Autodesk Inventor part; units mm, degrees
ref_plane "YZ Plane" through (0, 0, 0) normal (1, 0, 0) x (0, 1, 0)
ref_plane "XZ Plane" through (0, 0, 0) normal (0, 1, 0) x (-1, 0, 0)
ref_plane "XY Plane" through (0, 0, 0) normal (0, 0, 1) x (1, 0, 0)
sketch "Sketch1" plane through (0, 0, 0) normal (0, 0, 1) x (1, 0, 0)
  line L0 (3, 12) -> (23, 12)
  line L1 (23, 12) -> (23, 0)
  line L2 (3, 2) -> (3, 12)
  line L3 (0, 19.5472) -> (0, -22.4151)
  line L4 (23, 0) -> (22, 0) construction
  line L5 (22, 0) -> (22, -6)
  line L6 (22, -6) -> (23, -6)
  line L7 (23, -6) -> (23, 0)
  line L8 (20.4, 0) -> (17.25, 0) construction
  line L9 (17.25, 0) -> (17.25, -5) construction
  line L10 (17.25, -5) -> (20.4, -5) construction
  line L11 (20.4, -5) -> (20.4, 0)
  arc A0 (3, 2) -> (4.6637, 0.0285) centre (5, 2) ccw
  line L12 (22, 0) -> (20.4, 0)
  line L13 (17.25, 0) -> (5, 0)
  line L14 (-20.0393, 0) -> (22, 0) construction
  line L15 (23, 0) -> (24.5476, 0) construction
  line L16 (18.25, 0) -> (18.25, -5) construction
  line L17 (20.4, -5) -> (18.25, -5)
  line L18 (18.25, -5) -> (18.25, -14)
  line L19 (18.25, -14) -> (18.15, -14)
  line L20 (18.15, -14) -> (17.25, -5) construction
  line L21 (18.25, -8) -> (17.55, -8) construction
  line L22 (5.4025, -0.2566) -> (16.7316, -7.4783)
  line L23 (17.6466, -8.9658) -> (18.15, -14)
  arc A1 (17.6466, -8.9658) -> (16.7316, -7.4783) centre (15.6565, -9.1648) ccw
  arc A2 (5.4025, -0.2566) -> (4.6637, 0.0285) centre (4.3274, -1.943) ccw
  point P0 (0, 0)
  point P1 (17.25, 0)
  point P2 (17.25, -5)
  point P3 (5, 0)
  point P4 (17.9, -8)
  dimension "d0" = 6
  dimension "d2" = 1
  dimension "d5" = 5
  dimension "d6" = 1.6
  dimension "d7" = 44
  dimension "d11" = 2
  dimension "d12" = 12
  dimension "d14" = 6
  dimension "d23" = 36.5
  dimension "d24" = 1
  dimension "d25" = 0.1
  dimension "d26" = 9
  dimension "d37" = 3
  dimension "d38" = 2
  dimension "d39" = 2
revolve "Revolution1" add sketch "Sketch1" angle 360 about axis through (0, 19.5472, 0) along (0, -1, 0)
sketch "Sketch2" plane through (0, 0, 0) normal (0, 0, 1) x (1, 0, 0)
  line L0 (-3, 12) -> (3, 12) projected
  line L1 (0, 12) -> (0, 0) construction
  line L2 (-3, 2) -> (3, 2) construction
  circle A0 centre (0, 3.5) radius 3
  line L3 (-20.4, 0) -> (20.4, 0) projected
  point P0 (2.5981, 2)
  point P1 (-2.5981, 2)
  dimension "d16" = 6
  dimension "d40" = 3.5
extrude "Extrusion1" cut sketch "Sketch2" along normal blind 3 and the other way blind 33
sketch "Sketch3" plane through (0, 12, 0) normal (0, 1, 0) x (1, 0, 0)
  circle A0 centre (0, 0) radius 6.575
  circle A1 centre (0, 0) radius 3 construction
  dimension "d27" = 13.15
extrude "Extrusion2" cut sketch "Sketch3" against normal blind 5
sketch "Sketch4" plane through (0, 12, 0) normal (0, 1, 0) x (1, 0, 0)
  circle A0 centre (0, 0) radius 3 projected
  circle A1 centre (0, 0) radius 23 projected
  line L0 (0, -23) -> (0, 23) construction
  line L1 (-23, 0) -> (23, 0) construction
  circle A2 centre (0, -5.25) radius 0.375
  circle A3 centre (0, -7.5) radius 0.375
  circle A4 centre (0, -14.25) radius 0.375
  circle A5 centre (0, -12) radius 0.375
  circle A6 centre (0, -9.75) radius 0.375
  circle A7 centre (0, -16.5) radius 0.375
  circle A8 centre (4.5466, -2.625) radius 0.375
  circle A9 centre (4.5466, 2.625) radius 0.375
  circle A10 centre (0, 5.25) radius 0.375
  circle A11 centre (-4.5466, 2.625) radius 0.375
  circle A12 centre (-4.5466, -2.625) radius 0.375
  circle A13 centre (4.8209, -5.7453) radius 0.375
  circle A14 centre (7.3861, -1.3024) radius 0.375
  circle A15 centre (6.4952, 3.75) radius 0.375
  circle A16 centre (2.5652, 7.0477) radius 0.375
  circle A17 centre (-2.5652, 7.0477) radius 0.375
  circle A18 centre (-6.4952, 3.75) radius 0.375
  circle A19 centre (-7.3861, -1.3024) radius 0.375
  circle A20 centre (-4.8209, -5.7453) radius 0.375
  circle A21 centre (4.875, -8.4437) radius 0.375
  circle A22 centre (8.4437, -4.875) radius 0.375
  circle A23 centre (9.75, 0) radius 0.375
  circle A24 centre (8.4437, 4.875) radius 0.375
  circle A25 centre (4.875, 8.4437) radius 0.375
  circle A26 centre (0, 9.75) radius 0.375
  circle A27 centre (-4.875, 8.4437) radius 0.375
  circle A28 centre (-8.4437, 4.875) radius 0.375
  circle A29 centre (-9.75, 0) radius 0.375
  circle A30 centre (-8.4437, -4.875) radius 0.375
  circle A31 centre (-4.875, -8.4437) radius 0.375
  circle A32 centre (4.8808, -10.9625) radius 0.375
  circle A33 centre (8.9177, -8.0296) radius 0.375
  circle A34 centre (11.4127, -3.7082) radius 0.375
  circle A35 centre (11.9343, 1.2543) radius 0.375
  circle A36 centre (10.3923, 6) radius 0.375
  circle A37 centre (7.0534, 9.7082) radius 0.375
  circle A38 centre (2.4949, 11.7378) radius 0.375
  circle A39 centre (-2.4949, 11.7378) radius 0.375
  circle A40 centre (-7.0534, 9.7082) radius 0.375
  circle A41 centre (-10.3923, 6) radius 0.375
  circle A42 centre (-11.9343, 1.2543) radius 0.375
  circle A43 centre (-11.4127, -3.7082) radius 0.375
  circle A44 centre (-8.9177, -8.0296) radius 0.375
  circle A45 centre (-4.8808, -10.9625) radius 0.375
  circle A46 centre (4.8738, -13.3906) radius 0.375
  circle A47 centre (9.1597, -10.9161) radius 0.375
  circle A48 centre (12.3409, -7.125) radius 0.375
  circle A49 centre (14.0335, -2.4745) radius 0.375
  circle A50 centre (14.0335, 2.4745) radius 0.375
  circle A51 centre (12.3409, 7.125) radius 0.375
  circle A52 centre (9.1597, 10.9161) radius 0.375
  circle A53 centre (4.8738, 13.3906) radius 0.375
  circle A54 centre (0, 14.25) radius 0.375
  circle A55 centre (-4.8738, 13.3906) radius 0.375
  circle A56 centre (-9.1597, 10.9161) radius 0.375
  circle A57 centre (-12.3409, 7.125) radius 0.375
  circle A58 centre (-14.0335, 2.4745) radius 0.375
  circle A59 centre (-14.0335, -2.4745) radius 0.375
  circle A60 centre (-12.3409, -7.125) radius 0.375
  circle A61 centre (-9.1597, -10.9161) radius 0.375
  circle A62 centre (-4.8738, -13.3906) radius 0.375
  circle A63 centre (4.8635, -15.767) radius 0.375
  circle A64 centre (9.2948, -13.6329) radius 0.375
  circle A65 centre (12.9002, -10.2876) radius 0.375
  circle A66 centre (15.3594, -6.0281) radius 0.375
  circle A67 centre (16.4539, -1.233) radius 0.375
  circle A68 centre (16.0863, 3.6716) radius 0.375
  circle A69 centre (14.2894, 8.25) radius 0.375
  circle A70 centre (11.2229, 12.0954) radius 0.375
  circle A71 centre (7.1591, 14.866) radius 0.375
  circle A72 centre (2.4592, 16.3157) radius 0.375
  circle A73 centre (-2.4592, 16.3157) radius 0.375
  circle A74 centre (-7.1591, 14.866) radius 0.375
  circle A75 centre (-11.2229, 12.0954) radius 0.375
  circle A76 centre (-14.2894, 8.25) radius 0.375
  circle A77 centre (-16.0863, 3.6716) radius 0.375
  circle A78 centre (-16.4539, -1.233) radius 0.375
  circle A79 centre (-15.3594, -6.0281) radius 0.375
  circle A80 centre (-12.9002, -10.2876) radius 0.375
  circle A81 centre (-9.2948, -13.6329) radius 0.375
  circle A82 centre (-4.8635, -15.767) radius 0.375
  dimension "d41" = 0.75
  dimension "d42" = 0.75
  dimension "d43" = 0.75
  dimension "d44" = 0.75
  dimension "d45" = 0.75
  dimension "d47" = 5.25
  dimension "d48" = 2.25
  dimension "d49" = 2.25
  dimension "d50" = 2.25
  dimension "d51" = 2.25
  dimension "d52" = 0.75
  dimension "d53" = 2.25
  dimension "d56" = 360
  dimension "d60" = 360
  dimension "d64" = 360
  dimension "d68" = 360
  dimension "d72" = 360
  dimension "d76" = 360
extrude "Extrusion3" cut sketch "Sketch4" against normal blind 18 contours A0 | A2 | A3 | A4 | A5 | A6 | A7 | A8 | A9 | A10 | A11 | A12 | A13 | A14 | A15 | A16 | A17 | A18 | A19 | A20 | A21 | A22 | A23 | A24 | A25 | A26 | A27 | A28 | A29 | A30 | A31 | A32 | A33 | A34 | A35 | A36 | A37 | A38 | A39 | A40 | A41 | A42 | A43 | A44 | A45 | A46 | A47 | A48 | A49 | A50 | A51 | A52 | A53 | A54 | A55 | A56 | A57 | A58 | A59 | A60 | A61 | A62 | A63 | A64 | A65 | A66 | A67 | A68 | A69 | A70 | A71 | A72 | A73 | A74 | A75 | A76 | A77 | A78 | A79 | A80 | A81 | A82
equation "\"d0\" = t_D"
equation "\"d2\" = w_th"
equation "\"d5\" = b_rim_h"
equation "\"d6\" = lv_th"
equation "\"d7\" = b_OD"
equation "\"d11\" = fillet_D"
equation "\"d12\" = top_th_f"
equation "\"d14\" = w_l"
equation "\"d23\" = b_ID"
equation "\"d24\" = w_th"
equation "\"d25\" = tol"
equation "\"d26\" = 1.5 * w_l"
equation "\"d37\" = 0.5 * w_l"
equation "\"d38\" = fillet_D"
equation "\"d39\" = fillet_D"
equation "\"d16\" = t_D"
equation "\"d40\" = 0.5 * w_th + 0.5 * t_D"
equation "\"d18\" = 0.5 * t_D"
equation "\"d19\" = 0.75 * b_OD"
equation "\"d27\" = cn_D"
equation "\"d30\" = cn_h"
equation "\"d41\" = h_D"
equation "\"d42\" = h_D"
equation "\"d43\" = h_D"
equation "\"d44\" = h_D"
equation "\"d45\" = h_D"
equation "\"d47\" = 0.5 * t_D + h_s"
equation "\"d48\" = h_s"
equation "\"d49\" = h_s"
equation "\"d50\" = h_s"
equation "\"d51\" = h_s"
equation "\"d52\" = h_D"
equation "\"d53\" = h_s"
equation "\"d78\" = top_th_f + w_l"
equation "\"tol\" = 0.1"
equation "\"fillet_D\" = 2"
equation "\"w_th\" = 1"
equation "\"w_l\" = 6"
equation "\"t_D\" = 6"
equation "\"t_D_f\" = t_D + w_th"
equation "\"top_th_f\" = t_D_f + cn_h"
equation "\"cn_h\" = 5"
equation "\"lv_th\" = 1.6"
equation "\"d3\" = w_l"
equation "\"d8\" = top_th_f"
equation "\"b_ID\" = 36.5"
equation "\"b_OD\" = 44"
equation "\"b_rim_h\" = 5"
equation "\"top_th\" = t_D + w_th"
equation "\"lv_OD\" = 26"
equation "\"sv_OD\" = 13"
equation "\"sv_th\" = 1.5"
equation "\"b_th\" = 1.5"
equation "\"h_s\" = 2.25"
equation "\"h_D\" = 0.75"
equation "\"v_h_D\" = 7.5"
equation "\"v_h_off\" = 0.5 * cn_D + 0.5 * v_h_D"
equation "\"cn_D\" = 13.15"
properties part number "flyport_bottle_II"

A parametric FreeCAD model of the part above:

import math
import FreeCAD as App
import Part
import Sketcher

V = App.Vector
Q = App.Units.Quantity

doc = App.newDocument("Part")
body = doc.addObject("PartDesign::Body", "Body")

# Sketch on XY plane
sketch1 = doc.addObject("Sketcher::SketchObject", "Sketch")
body.addObject(sketch1)
sketch1.AttachmentSupport = (doc.XY_Plane, [""])
sketch1.MapMode = "FlatFace"
sketch1.addGeometry([
    Part.LineSegment(V(23, 12, 0), V(3, 12, 0)),  # 0
    Part.LineSegment(V(3, 12, 0), V(3, 2, 0)),  # 1
    Part.ArcOfCircle(Part.Circle(V(5, 2, 0), V(0, 0, 1), 2), math.radians(180), math.radians(260)),  # 2
    Part.ArcOfCircle(Part.Circle(V(4.33, -1.94, 0), V(0, 0, 1), 2), math.radians(57), math.radians(80)),  # 3
    Part.LineSegment(V(5.4, -0.26, 0), V(16.73, -7.48, 0)),  # 4
    Part.ArcOfCircle(Part.Circle(V(15.66, -9.16, 0), V(0, 0, 1), 2), math.radians(6), math.radians(57)),  # 5
    Part.LineSegment(V(17.65, -8.97, 0), V(18.15, -14, 0)),  # 6
    Part.LineSegment(V(18.15, -14, 0), V(18.25, -14, 0)),  # 7
    Part.LineSegment(V(18.25, -14, 0), V(18.25, -5, 0)),  # 8
    Part.LineSegment(V(18.25, -5, 0), V(20.4, -5, 0)),  # 9
    Part.LineSegment(V(20.4, -5, 0), V(20.4, 0, 0)),  # 10
    Part.LineSegment(V(20.4, 0, 0), V(22, 0, 0)),  # 11
    Part.LineSegment(V(22, 0, 0), V(22, -6, 0)),  # 12
    Part.LineSegment(V(22, -6, 0), V(23, -6, 0)),  # 13
    Part.LineSegment(V(23, -6, 0), V(23, 12, 0)),  # 14
], False)
sketch1.addConstraint([
    Sketcher.Constraint("Coincident", 0, 2, 1, 1),
    Sketcher.Constraint("Tangent", 1, 2, 2, 1),
    Sketcher.Constraint("Tangent", 2, 2, 3, 2),
    Sketcher.Constraint("Tangent", 3, 1, 4, 1),
    Sketcher.Constraint("Tangent", 4, 2, 5, 2),
    Sketcher.Constraint("Tangent", 5, 1, 6, 1),
    Sketcher.Constraint("Coincident", 6, 2, 7, 1),
    Sketcher.Constraint("Coincident", 7, 2, 8, 1),
    Sketcher.Constraint("Coincident", 8, 2, 9, 1),
    Sketcher.Constraint("Coincident", 9, 2, 10, 1),
    Sketcher.Constraint("Coincident", 10, 2, 11, 1),
    Sketcher.Constraint("Coincident", 11, 2, 12, 1),
    Sketcher.Constraint("Coincident", 12, 2, 13, 1),
    Sketcher.Constraint("Coincident", 13, 2, 14, 1),
    Sketcher.Constraint("Coincident", 14, 2, 0, 1),
    Sketcher.Constraint("Horizontal", 0),
    Sketcher.Constraint("Vertical", 1),
    Sketcher.Constraint("Horizontal", 7),
    Sketcher.Constraint("Vertical", 8),
    Sketcher.Constraint("Horizontal", 9),
    Sketcher.Constraint("Vertical", 10),
    Sketcher.Constraint("Horizontal", 11),
    Sketcher.Constraint("Vertical", 12),
    Sketcher.Constraint("Horizontal", 13),
    Sketcher.Constraint("Vertical", 14),
    Sketcher.Constraint("Equal", 2, 3),
    Sketcher.Constraint("Equal", 3, 5),
    Sketcher.Constraint("PointOnObject", 10, 2, -1),
    Sketcher.Constraint("Radius", 2, Q("2 mm")),
    Sketcher.Constraint("DistanceX", 13, 1, 13, 2, Q("1 mm")),
    Sketcher.Constraint("DistanceY", 8, 1, 8, 2, Q("9 mm")),
    Sketcher.Constraint("DistanceY", 10, 1, 10, 2, Q("5 mm")),
    Sketcher.Constraint("DistanceY", 12, 2, 12, 1, Q("6 mm")),
    Sketcher.Constraint("DistanceX", 7, 1, 7, 2, Q("0.1 mm")),
    Sketcher.Constraint("DistanceX", 11, 1, 11, 2, Q("1.6 mm")),
    Sketcher.Constraint("DistanceX", -1, 1, 2, 3, Q("5 mm")),
    Sketcher.Constraint("DistanceY", -1, 1, 2, 3, Q("2 mm")),
    Sketcher.Constraint("DistanceY", -1, 1, 0, 2, Q("12 mm")),
    Sketcher.Constraint("DistanceX", 0, 2, 0, 1, Q("20 mm")),
    Sketcher.Constraint("DistanceX", 9, 1, 9, 2, Q("2.15 mm")),
    Sketcher.Constraint("Angle", 6, Q("-84.2896 deg")),
    Sketcher.Constraint("Distance", 4, Q("13.435 mm")),
    Sketcher.Constraint("DistanceY", 3, 3, -1, 1, Q("1.943 mm")),
])
revolution = doc.addObject("PartDesign::Revolution", "Revolution")
body.addObject(revolution)
revolution.Profile = sketch1
revolution.ReferenceAxis = (sketch1, ["V_Axis"])
revolution.Angle = 360

# Sketch on XY plane
sketch2 = doc.addObject("Sketcher::SketchObject", "Sketch001")
body.addObject(sketch2)
sketch2.AttachmentSupport = (doc.XY_Plane, [""])
sketch2.MapMode = "FlatFace"
sketch2.addGeometry(Part.Circle(V(0, 3.5, 0), V(0, 0, 1), 3), False)
sketch2.addConstraint([
    Sketcher.Constraint("PointOnObject", 0, 3, -2),
    Sketcher.Constraint("Diameter", 0, Q("6 mm")),
    Sketcher.Constraint("DistanceY", -1, 1, 0, 3, Q("3.5 mm")),
])
pocket1 = doc.addObject("PartDesign::Pocket", "Pocket")
body.addObject(pocket1)
pocket1.Profile = sketch2
pocket1.Type = "TwoLengths"
pocket1.Length = 3
pocket1.Length2 = 33
pocket1.Reversed = True

# Sketch on XZ plane
sketch3 = doc.addObject("Sketcher::SketchObject", "Sketch002")
body.addObject(sketch3)
sketch3.AttachmentSupport = (doc.XZ_Plane, [""])
sketch3.MapMode = "FlatFace"
sketch3.AttachmentOffset = App.Placement(V(0, 0, -12), App.Rotation())
sketch3.addGeometry(Part.Circle(V(0, 0, 0), V(0, 0, 1), 7), False)
sketch3.addConstraint([
    Sketcher.Constraint("Coincident", 0, 3, -1, 1),
    Sketcher.Constraint("Diameter", 0, Q("13.15 mm")),
])
pocket2 = doc.addObject("PartDesign::Pocket", "Pocket001")
body.addObject(pocket2)
pocket2.Profile = sketch3
pocket2.Length = 5
pocket2.Reversed = True

# Sketch on XZ plane
sketch4 = doc.addObject("Sketcher::SketchObject", "Sketch003")
body.addObject(sketch4)
sketch4.AttachmentSupport = (doc.XZ_Plane, [""])
sketch4.MapMode = "FlatFace"
sketch4.AttachmentOffset = App.Placement(V(0, 0, -12), App.Rotation())
sketch4.addGeometry([
    Part.Circle(V(0, 0, 0), V(0, 0, 1), 3),  # 0
    Part.Circle(V(0, 5.25, 0), V(0, 0, 1), 0.38),  # 1
    Part.Circle(V(0, 7.5, 0), V(0, 0, 1), 0.38),  # 2
    Part.Circle(V(0, 14.25, 0), V(0, 0, 1), 0.38),  # 3
    Part.Circle(V(0, 12, 0), V(0, 0, 1), 0.38),  # 4
    Part.Circle(V(0, 9.75, 0), V(0, 0, 1), 0.38),  # 5
    Part.Circle(V(0, 16.5, 0), V(0, 0, 1), 0.38),  # 6
    Part.Circle(V(4.55, 2.62, 0), V(0, 0, 1), 0.38),  # 7
    Part.Circle(V(4.55, -2.62, 0), V(0, 0, 1), 0.38),  # 8
    Part.Circle(V(0, -5.25, 0), V(0, 0, 1), 0.38),  # 9
    Part.Circle(V(-4.55, -2.62, 0), V(0, 0, 1), 0.38),  # 10
    Part.Circle(V(-4.55, 2.62, 0), V(0, 0, 1), 0.38),  # 11
    Part.Circle(V(4.82, 5.75, 0), V(0, 0, 1), 0.38),  # 12
    Part.Circle(V(7.39, 1.3, 0), V(0, 0, 1), 0.38),  # 13
    Part.Circle(V(6.5, -3.75, 0), V(0, 0, 1), 0.38),  # 14
    Part.Circle(V(2.57, -7.05, 0), V(0, 0, 1), 0.38),  # 15
    Part.Circle(V(-2.57, -7.05, 0), V(0, 0, 1), 0.38),  # 16
    Part.Circle(V(-6.5, -3.75, 0), V(0, 0, 1), 0.38),  # 17
    Part.Circle(V(-7.39, 1.3, 0), V(0, 0, 1), 0.38),  # 18
    Part.Circle(V(-4.82, 5.75, 0), V(0, 0, 1), 0.38),  # 19
    Part.Circle(V(4.88, 8.44, 0), V(0, 0, 1), 0.38),  # 20
    Part.Circle(V(8.44, 4.88, 0), V(0, 0, 1), 0.38),  # 21
    Part.Circle(V(9.75, 0, 0), V(0, 0, 1), 0.38),  # 22
    Part.Circle(V(8.44, -4.88, 0), V(0, 0, 1), 0.38),  # 23
    Part.Circle(V(4.88, -8.44, 0), V(0, 0, 1), 0.38),  # 24
    Part.Circle(V(0, -9.75, 0), V(0, 0, 1), 0.38),  # 25
    Part.Circle(V(-4.88, -8.44, 0), V(0, 0, 1), 0.38),  # 26
    Part.Circle(V(-8.44, -4.88, 0), V(0, 0, 1), 0.38),  # 27
    Part.Circle(V(-9.75, 0, 0), V(0, 0, 1), 0.38),  # 28
    Part.Circle(V(-8.44, 4.88, 0), V(0, 0, 1), 0.38),  # 29
    Part.Circle(V(-4.88, 8.44, 0), V(0, 0, 1), 0.38),  # 30
    Part.Circle(V(4.88, 10.96, 0), V(0, 0, 1), 0.38),  # 31
    Part.Circle(V(8.92, 8.03, 0), V(0, 0, 1), 0.38),  # 32
    Part.Circle(V(11.41, 3.71, 0), V(0, 0, 1), 0.38),  # 33
    Part.Circle(V(11.93, -1.25, 0), V(0, 0, 1), 0.38),  # 34
    Part.Circle(V(10.39, -6, 0), V(0, 0, 1), 0.38),  # 35
    Part.Circle(V(7.05, -9.71, 0), V(0, 0, 1), 0.38),  # 36
    Part.Circle(V(2.49, -11.74, 0), V(0, 0, 1), 0.38),  # 37
    Part.Circle(V(-2.49, -11.74, 0), V(0, 0, 1), 0.38),  # 38
    Part.Circle(V(-7.05, -9.71, 0), V(0, 0, 1), 0.38),  # 39
    Part.Circle(V(-10.39, -6, 0), V(0, 0, 1), 0.38),  # 40
    Part.Circle(V(-11.93, -1.25, 0), V(0, 0, 1), 0.38),  # 41
    Part.Circle(V(-11.41, 3.71, 0), V(0, 0, 1), 0.38),  # 42
    Part.Circle(V(-8.92, 8.03, 0), V(0, 0, 1), 0.38),  # 43
    Part.Circle(V(-4.88, 10.96, 0), V(0, 0, 1), 0.38),  # 44
    Part.Circle(V(4.87, 13.39, 0), V(0, 0, 1), 0.38),  # 45
    Part.Circle(V(9.16, 10.92, 0), V(0, 0, 1), 0.38),  # 46
    Part.Circle(V(12.34, 7.12, 0), V(0, 0, 1), 0.38),  # 47
    Part.Circle(V(14.03, 2.47, 0), V(0, 0, 1), 0.38),  # 48
    Part.Circle(V(14.03, -2.47, 0), V(0, 0, 1), 0.38),  # 49
    Part.Circle(V(12.34, -7.12, 0), V(0, 0, 1), 0.38),  # 50
    Part.Circle(V(9.16, -10.92, 0), V(0, 0, 1), 0.38),  # 51
    Part.Circle(V(4.87, -13.39, 0), V(0, 0, 1), 0.38),  # 52
    Part.Circle(V(0, -14.25, 0), V(0, 0, 1), 0.38),  # 53
    Part.Circle(V(-4.87, -13.39, 0), V(0, 0, 1), 0.38),  # 54
    Part.Circle(V(-9.16, -10.92, 0), V(0, 0, 1), 0.38),  # 55
    Part.Circle(V(-12.34, -7.12, 0), V(0, 0, 1), 0.38),  # 56
    Part.Circle(V(-14.03, -2.47, 0), V(0, 0, 1), 0.38),  # 57
    Part.Circle(V(-14.03, 2.47, 0), V(0, 0, 1), 0.38),  # 58
    Part.Circle(V(-12.34, 7.12, 0), V(0, 0, 1), 0.38),  # 59
    Part.Circle(V(-9.16, 10.92, 0), V(0, 0, 1), 0.38),  # 60
    Part.Circle(V(-4.87, 13.39, 0), V(0, 0, 1), 0.38),  # 61
    Part.Circle(V(4.86, 15.77, 0), V(0, 0, 1), 0.38),  # 62
    Part.Circle(V(9.29, 13.63, 0), V(0, 0, 1), 0.38),  # 63
    Part.Circle(V(12.9, 10.29, 0), V(0, 0, 1), 0.38),  # 64
    Part.Circle(V(15.36, 6.03, 0), V(0, 0, 1), 0.38),  # 65
    Part.Circle(V(16.45, 1.23, 0), V(0, 0, 1), 0.38),  # 66
    Part.Circle(V(16.09, -3.67, 0), V(0, 0, 1), 0.38),  # 67
    Part.Circle(V(14.29, -8.25, 0), V(0, 0, 1), 0.38),  # 68
    Part.Circle(V(11.22, -12.1, 0), V(0, 0, 1), 0.38),  # 69
    Part.Circle(V(7.16, -14.87, 0), V(0, 0, 1), 0.38),  # 70
    Part.Circle(V(2.46, -16.32, 0), V(0, 0, 1), 0.38),  # 71
    Part.Circle(V(-2.46, -16.32, 0), V(0, 0, 1), 0.38),  # 72
    Part.Circle(V(-7.16, -14.87, 0), V(0, 0, 1), 0.38),  # 73
    Part.Circle(V(-11.22, -12.1, 0), V(0, 0, 1), 0.38),  # 74
    Part.Circle(V(-14.29, -8.25, 0), V(0, 0, 1), 0.38),  # 75
    Part.Circle(V(-16.09, -3.67, 0), V(0, 0, 1), 0.38),  # 76
    Part.Circle(V(-16.45, 1.23, 0), V(0, 0, 1), 0.38),  # 77
    Part.Circle(V(-15.36, 6.03, 0), V(0, 0, 1), 0.38),  # 78
    Part.Circle(V(-12.9, 10.29, 0), V(0, 0, 1), 0.38),  # 79
    Part.Circle(V(-9.29, 13.63, 0), V(0, 0, 1), 0.38),  # 80
    Part.Circle(V(-4.86, 15.77, 0), V(0, 0, 1), 0.38),  # 81
], False)
sketch4.addConstraint([
    Sketcher.Constraint("Coincident", 0, 3, -1, 1),
    Sketcher.Constraint("Equal", 1, 2),
    Sketcher.Constraint("Equal", 2, 3),
    Sketcher.Constraint("Equal", 3, 4),
    Sketcher.Constraint("Equal", 4, 5),
    Sketcher.Constraint("Equal", 5, 6),
    Sketcher.Constraint("Equal", 6, 7),
    Sketcher.Constraint("Equal", 7, 8),
    Sketcher.Constraint("Equal", 8, 9),
    Sketcher.Constraint("Equal", 9, 10),
    Sketcher.Constraint("Equal", 10, 11),
    Sketcher.Constraint("Equal", 11, 12),
    Sketcher.Constraint("Equal", 12, 13),
    Sketcher.Constraint("Equal", 13, 14),
    Sketcher.Constraint("Equal", 14, 15),
    Sketcher.Constraint("Equal", 15, 16),
    Sketcher.Constraint("Equal", 16, 17),
    Sketcher.Constraint("Equal", 17, 18),
    Sketcher.Constraint("Equal", 18, 19),
    Sketcher.Constraint("Equal", 19, 20),
    Sketcher.Constraint("Equal", 20, 21),
    Sketcher.Constraint("Equal", 21, 22),
    Sketcher.Constraint("Equal", 22, 23),
    Sketcher.Constraint("Equal", 23, 24),
    Sketcher.Constraint("Equal", 24, 25),
    Sketcher.Constraint("Equal", 25, 26),
    Sketcher.Constraint("Equal", 26, 27),
    Sketcher.Constraint("Equal", 27, 28),
    Sketcher.Constraint("Equal", 28, 29),
    Sketcher.Constraint("Equal", 29, 30),
    Sketcher.Constraint("Equal", 30, 31),
    Sketcher.Constraint("Equal", 31, 32),
    Sketcher.Constraint("Equal", 32, 33),
    Sketcher.Constraint("Equal", 33, 34),
    Sketcher.Constraint("Equal", 34, 35),
    Sketcher.Constraint("Equal", 35, 36),
    Sketcher.Constraint("Equal", 36, 37),
    Sketcher.Constraint("Equal", 37, 38),
    Sketcher.Constraint("Equal", 38, 39),
    Sketcher.Constraint("Equal", 39, 40),
    Sketcher.Constraint("Equal", 40, 41),
    Sketcher.Constraint("Equal", 41, 42),
    Sketcher.Constraint("Equal", 42, 43),
    Sketcher.Constraint("Equal", 43, 44),
    Sketcher.Constraint("Equal", 44, 45),
    Sketcher.Constraint("Equal", 45, 46),
    Sketcher.Constraint("Equal", 46, 47),
    Sketcher.Constraint("Equal", 47, 48),
    Sketcher.Constraint("Equal", 48, 49),
    Sketcher.Constraint("Equal", 49, 50),
    Sketcher.Constraint("Equal", 50, 51),
    Sketcher.Constraint("Equal", 51, 52),
    Sketcher.Constraint("Equal", 52, 53),
    Sketcher.Constraint("Equal", 53, 54),
    Sketcher.Constraint("Equal", 54, 55),
    Sketcher.Constraint("Equal", 55, 56),
    Sketcher.Constraint("Equal", 56, 57),
    Sketcher.Constraint("Equal", 57, 58),
    Sketcher.Constraint("Equal", 58, 59),
    Sketcher.Constraint("Equal", 59, 60),
    Sketcher.Constraint("Equal", 60, 61),
    Sketcher.Constraint("Equal", 61, 62),
    Sketcher.Constraint("Equal", 62, 63),
    Sketcher.Constraint("Equal", 63, 64),
    Sketcher.Constraint("Equal", 64, 65),
    Sketcher.Constraint("Equal", 65, 66),
    Sketcher.Constraint("Equal", 66, 67),
    Sketcher.Constraint("Equal", 67, 68),
    Sketcher.Constraint("Equal", 68, 69),
    Sketcher.Constraint("Equal", 69, 70),
    Sketcher.Constraint("Equal", 70, 71),
    Sketcher.Constraint("Equal", 71, 72),
    Sketcher.Constraint("Equal", 72, 73),
    Sketcher.Constraint("Equal", 73, 74),
    Sketcher.Constraint("Equal", 74, 75),
    Sketcher.Constraint("Equal", 75, 76),
    Sketcher.Constraint("Equal", 76, 77),
    Sketcher.Constraint("Equal", 77, 78),
    Sketcher.Constraint("Equal", 78, 79),
    Sketcher.Constraint("Equal", 79, 80),
    Sketcher.Constraint("Equal", 80, 81),
    Sketcher.Constraint("Symmetric", 1, 3, 9, 3, -1, 1),
    Sketcher.Constraint("Symmetric", 7, 3, 10, 3, -1, 1),
    Sketcher.Constraint("Symmetric", 8, 3, 11, 3, -1, 1),
    Sketcher.Constraint("Symmetric", 5, 3, 25, 3, -1, 1),
    Sketcher.Constraint("Symmetric", 20, 3, 26, 3, -1, 1),
    Sketcher.Constraint("Symmetric", 21, 3, 27, 3, -1, 1),
    Sketcher.Constraint("Symmetric", 22, 3, 28, 3, -1, 1),
    Sketcher.Constraint("Symmetric", 23, 3, 29, 3, -1, 1),
    Sketcher.Constraint("Symmetric", 24, 3, 30, 3, -1, 1),
    Sketcher.Constraint("Symmetric", 3, 3, 53, 3, -1, 1),
    Sketcher.Constraint("Symmetric", 45, 3, 54, 3, -1, 1),
    Sketcher.Constraint("Symmetric", 46, 3, 55, 3, -1, 1),
    Sketcher.Constraint("Symmetric", 47, 3, 56, 3, -1, 1),
    Sketcher.Constraint("Symmetric", 48, 3, 57, 3, -1, 1),
    Sketcher.Constraint("Symmetric", 49, 3, 58, 3, -1, 1),
    Sketcher.Constraint("Symmetric", 50, 3, 59, 3, -1, 1),
    Sketcher.Constraint("Symmetric", 51, 3, 60, 3, -1, 1),
    Sketcher.Constraint("Symmetric", 52, 3, 61, 3, -1, 1),
    Sketcher.Constraint("Symmetric", 8, 3, 10, 3, -2),
    Sketcher.Constraint("Symmetric", 15, 3, 16, 3, -2),
    Sketcher.Constraint("Symmetric", 14, 3, 17, 3, -2),
    Sketcher.Constraint("Symmetric", 13, 3, 18, 3, -2),
    Sketcher.Constraint("Symmetric", 12, 3, 19, 3, -2),
    Sketcher.Constraint("Symmetric", 24, 3, 26, 3, -2),
    Sketcher.Constraint("Symmetric", 23, 3, 27, 3, -2),
    Sketcher.Constraint("Symmetric", 37, 3, 38, 3, -2),
    Sketcher.Constraint("Symmetric", 36, 3, 39, 3, -2),
    Sketcher.Constraint("Symmetric", 35, 3, 40, 3, -2),
    Sketcher.Constraint("Symmetric", 34, 3, 41, 3, -2),
    Sketcher.Constraint("Symmetric", 33, 3, 42, 3, -2),
    Sketcher.Constraint("Symmetric", 32, 3, 43, 3, -2),
    Sketcher.Constraint("Symmetric", 31, 3, 44, 3, -2),
    Sketcher.Constraint("Symmetric", 52, 3, 54, 3, -2),
    Sketcher.Constraint("Symmetric", 51, 3, 55, 3, -2),
    Sketcher.Constraint("Symmetric", 50, 3, 56, 3, -2),
    Sketcher.Constraint("Symmetric", 49, 3, 57, 3, -2),
    Sketcher.Constraint("Symmetric", 71, 3, 72, 3, -2),
    Sketcher.Constraint("Symmetric", 70, 3, 73, 3, -2),
    Sketcher.Constraint("Symmetric", 69, 3, 74, 3, -2),
    Sketcher.Constraint("Symmetric", 68, 3, 75, 3, -2),
    Sketcher.Constraint("Symmetric", 67, 3, 76, 3, -2),
    Sketcher.Constraint("Symmetric", 66, 3, 77, 3, -2),
    Sketcher.Constraint("Symmetric", 65, 3, 78, 3, -2),
    Sketcher.Constraint("Symmetric", 64, 3, 79, 3, -2),
    Sketcher.Constraint("Symmetric", 63, 3, 80, 3, -2),
    Sketcher.Constraint("Symmetric", 62, 3, 81, 3, -2),
    Sketcher.Constraint("PointOnObject", 1, 3, -2),
    Sketcher.Constraint("PointOnObject", 2, 3, -2),
    Sketcher.Constraint("PointOnObject", 3, 3, -2),
    Sketcher.Constraint("PointOnObject", 4, 3, -2),
    Sketcher.Constraint("PointOnObject", 5, 3, -2),
    Sketcher.Constraint("PointOnObject", 6, 3, -2),
    Sketcher.Constraint("PointOnObject", 22, 3, -1),
    Sketcher.Constraint("Diameter", 1, Q("0.75 mm")),
    Sketcher.Constraint("Diameter", 0, Q("6 mm")),
    Sketcher.Constraint("DistanceY", -1, 1, 1, 3, Q("5.25 mm")),
    Sketcher.Constraint("DistanceY", -1, 1, 4, 3, Q("12 mm")),
    Sketcher.Constraint("DistanceY", 35, 3, -1, 1, Q("6 mm")),
    Sketcher.Constraint("DistanceY", -1, 1, 2, 3, Q("7.5 mm")),
    Sketcher.Constraint("DistanceY", -1, 1, 6, 3, Q("16.5 mm")),
    Sketcher.Constraint("DistanceY", -1, 1, 3, 3, Q("14.25 mm")),
    Sketcher.Constraint("DistanceY", -1, 1, 5, 3, Q("9.75 mm")),
    Sketcher.Constraint("DistanceY", 14, 3, -1, 1, Q("3.75 mm")),
    Sketcher.Constraint("DistanceX", -1, 1, 22, 3, Q("9.75 mm")),
    Sketcher.Constraint("DistanceY", 68, 3, -1, 1, Q("8.25 mm")),
    Sketcher.Constraint("DistanceY", -1, 1, 7, 3, Q("2.625 mm")),
    Sketcher.Constraint("DistanceX", -1, 1, 12, 3, Q("4.821 mm")),
    Sketcher.Constraint("DistanceX", -1, 1, 13, 3, Q("7.386 mm")),
    Sketcher.Constraint("DistanceX", -1, 1, 20, 3, Q("4.875 mm")),
    Sketcher.Constraint("DistanceY", -1, 1, 21, 3, Q("4.875 mm")),
    Sketcher.Constraint("DistanceX", -1, 1, 37, 3, Q("2.495 mm")),
    Sketcher.Constraint("DistanceY", -1, 1, 46, 3, Q("10.916 mm")),
    Sketcher.Constraint("DistanceX", -1, 1, 47, 3, Q("12.341 mm")),
    Sketcher.Constraint("DistanceY", -1, 1, 47, 3, Q("7.125 mm")),
    Sketcher.Constraint("DistanceY", -1, 1, 62, 3, Q("15.767 mm")),
    Sketcher.Constraint("DistanceY", -1, 1, 63, 3, Q("13.633 mm")),
    Sketcher.Constraint("DistanceY", -1, 1, 65, 3, Q("6.028 mm")),
    Sketcher.Constraint("DistanceX", -1, 1, 66, 3, Q("16.454 mm")),
    Sketcher.Constraint("DistanceY", -1, 1, 66, 3, Q("1.233 mm")),
    Sketcher.Constraint("DistanceX", -1, 1, 69, 3, Q("11.223 mm")),
    Sketcher.Constraint("DistanceX", -1, 1, 70, 3, Q("7.159 mm")),
    Sketcher.Constraint("DistanceY", 70, 3, -1, 1, Q("14.866 mm")),
    Sketcher.Constraint("DistanceX", -1, 1, 7, 3, Q("4.5466 mm")),
    Sketcher.Constraint("DistanceY", -1, 1, 12, 3, Q("5.7453 mm")),
    Sketcher.Constraint("DistanceY", -1, 1, 13, 3, Q("1.3024 mm")),
    Sketcher.Constraint("DistanceX", -1, 1, 14, 3, Q("6.4952 mm")),
    Sketcher.Constraint("DistanceX", -1, 1, 15, 3, Q("2.5652 mm")),
    Sketcher.Constraint("DistanceY", 15, 3, -1, 1, Q("7.0477 mm")),
    Sketcher.Constraint("DistanceY", -1, 1, 20, 3, Q("8.4437 mm")),
    Sketcher.Constraint("DistanceX", -1, 1, 21, 3, Q("8.4437 mm")),
    Sketcher.Constraint("DistanceX", -1, 1, 31, 3, Q("4.8808 mm")),
    Sketcher.Constraint("DistanceY", -1, 1, 31, 3, Q("10.9625 mm")),
    Sketcher.Constraint("DistanceX", -1, 1, 32, 3, Q("8.9177 mm")),
    Sketcher.Constraint("DistanceY", -1, 1, 32, 3, Q("8.0296 mm")),
    Sketcher.Constraint("DistanceX", -1, 1, 33, 3, Q("11.4127 mm")),
    Sketcher.Constraint("DistanceY", -1, 1, 33, 3, Q("3.7082 mm")),
    Sketcher.Constraint("DistanceX", -1, 1, 34, 3, Q("11.9343 mm")),
    Sketcher.Constraint("DistanceY", 34, 3, -1, 1, Q("1.2543 mm")),
    Sketcher.Constraint("DistanceX", -1, 1, 35, 3, Q("10.3923 mm")),
    Sketcher.Constraint("DistanceX", -1, 1, 36, 3, Q("7.0534 mm")),
    Sketcher.Constraint("DistanceY", 36, 3, -1, 1, Q("9.7082 mm")),
    Sketcher.Constraint("DistanceY", 37, 3, -1, 1, Q("11.7378 mm")),
    Sketcher.Constraint("DistanceX", -1, 1, 45, 3, Q("4.8738 mm")),
    Sketcher.Constraint("DistanceY", -1, 1, 45, 3, Q("13.3906 mm")),
    Sketcher.Constraint("DistanceX", -1, 1, 46, 3, Q("9.1597 mm")),
    Sketcher.Constraint("DistanceX", -1, 1, 48, 3, Q("14.0335 mm")),
    Sketcher.Constraint("DistanceY", -1, 1, 48, 3, Q("2.4745 mm")),
    Sketcher.Constraint("DistanceX", -1, 1, 62, 3, Q("4.8635 mm")),
    Sketcher.Constraint("DistanceX", -1, 1, 63, 3, Q("9.2948 mm")),
    Sketcher.Constraint("DistanceX", -1, 1, 64, 3, Q("12.9002 mm")),
    Sketcher.Constraint("DistanceY", -1, 1, 64, 3, Q("10.2876 mm")),
    Sketcher.Constraint("DistanceX", -1, 1, 65, 3, Q("15.3594 mm")),
    Sketcher.Constraint("DistanceX", -1, 1, 67, 3, Q("16.0863 mm")),
    Sketcher.Constraint("DistanceY", 67, 3, -1, 1, Q("3.6716 mm")),
    Sketcher.Constraint("DistanceX", -1, 1, 68, 3, Q("14.2894 mm")),
    Sketcher.Constraint("DistanceY", 69, 3, -1, 1, Q("12.0954 mm")),
    Sketcher.Constraint("DistanceX", -1, 1, 71, 3, Q("2.4592 mm")),
    Sketcher.Constraint("DistanceY", 71, 3, -1, 1, Q("16.3157 mm")),
])
pocket3 = doc.addObject("PartDesign::Pocket", "Pocket002")
body.addObject(pocket3)
pocket3.Profile = sketch4
pocket3.Length = 18
pocket3.Reversed = True

doc.recompute()
